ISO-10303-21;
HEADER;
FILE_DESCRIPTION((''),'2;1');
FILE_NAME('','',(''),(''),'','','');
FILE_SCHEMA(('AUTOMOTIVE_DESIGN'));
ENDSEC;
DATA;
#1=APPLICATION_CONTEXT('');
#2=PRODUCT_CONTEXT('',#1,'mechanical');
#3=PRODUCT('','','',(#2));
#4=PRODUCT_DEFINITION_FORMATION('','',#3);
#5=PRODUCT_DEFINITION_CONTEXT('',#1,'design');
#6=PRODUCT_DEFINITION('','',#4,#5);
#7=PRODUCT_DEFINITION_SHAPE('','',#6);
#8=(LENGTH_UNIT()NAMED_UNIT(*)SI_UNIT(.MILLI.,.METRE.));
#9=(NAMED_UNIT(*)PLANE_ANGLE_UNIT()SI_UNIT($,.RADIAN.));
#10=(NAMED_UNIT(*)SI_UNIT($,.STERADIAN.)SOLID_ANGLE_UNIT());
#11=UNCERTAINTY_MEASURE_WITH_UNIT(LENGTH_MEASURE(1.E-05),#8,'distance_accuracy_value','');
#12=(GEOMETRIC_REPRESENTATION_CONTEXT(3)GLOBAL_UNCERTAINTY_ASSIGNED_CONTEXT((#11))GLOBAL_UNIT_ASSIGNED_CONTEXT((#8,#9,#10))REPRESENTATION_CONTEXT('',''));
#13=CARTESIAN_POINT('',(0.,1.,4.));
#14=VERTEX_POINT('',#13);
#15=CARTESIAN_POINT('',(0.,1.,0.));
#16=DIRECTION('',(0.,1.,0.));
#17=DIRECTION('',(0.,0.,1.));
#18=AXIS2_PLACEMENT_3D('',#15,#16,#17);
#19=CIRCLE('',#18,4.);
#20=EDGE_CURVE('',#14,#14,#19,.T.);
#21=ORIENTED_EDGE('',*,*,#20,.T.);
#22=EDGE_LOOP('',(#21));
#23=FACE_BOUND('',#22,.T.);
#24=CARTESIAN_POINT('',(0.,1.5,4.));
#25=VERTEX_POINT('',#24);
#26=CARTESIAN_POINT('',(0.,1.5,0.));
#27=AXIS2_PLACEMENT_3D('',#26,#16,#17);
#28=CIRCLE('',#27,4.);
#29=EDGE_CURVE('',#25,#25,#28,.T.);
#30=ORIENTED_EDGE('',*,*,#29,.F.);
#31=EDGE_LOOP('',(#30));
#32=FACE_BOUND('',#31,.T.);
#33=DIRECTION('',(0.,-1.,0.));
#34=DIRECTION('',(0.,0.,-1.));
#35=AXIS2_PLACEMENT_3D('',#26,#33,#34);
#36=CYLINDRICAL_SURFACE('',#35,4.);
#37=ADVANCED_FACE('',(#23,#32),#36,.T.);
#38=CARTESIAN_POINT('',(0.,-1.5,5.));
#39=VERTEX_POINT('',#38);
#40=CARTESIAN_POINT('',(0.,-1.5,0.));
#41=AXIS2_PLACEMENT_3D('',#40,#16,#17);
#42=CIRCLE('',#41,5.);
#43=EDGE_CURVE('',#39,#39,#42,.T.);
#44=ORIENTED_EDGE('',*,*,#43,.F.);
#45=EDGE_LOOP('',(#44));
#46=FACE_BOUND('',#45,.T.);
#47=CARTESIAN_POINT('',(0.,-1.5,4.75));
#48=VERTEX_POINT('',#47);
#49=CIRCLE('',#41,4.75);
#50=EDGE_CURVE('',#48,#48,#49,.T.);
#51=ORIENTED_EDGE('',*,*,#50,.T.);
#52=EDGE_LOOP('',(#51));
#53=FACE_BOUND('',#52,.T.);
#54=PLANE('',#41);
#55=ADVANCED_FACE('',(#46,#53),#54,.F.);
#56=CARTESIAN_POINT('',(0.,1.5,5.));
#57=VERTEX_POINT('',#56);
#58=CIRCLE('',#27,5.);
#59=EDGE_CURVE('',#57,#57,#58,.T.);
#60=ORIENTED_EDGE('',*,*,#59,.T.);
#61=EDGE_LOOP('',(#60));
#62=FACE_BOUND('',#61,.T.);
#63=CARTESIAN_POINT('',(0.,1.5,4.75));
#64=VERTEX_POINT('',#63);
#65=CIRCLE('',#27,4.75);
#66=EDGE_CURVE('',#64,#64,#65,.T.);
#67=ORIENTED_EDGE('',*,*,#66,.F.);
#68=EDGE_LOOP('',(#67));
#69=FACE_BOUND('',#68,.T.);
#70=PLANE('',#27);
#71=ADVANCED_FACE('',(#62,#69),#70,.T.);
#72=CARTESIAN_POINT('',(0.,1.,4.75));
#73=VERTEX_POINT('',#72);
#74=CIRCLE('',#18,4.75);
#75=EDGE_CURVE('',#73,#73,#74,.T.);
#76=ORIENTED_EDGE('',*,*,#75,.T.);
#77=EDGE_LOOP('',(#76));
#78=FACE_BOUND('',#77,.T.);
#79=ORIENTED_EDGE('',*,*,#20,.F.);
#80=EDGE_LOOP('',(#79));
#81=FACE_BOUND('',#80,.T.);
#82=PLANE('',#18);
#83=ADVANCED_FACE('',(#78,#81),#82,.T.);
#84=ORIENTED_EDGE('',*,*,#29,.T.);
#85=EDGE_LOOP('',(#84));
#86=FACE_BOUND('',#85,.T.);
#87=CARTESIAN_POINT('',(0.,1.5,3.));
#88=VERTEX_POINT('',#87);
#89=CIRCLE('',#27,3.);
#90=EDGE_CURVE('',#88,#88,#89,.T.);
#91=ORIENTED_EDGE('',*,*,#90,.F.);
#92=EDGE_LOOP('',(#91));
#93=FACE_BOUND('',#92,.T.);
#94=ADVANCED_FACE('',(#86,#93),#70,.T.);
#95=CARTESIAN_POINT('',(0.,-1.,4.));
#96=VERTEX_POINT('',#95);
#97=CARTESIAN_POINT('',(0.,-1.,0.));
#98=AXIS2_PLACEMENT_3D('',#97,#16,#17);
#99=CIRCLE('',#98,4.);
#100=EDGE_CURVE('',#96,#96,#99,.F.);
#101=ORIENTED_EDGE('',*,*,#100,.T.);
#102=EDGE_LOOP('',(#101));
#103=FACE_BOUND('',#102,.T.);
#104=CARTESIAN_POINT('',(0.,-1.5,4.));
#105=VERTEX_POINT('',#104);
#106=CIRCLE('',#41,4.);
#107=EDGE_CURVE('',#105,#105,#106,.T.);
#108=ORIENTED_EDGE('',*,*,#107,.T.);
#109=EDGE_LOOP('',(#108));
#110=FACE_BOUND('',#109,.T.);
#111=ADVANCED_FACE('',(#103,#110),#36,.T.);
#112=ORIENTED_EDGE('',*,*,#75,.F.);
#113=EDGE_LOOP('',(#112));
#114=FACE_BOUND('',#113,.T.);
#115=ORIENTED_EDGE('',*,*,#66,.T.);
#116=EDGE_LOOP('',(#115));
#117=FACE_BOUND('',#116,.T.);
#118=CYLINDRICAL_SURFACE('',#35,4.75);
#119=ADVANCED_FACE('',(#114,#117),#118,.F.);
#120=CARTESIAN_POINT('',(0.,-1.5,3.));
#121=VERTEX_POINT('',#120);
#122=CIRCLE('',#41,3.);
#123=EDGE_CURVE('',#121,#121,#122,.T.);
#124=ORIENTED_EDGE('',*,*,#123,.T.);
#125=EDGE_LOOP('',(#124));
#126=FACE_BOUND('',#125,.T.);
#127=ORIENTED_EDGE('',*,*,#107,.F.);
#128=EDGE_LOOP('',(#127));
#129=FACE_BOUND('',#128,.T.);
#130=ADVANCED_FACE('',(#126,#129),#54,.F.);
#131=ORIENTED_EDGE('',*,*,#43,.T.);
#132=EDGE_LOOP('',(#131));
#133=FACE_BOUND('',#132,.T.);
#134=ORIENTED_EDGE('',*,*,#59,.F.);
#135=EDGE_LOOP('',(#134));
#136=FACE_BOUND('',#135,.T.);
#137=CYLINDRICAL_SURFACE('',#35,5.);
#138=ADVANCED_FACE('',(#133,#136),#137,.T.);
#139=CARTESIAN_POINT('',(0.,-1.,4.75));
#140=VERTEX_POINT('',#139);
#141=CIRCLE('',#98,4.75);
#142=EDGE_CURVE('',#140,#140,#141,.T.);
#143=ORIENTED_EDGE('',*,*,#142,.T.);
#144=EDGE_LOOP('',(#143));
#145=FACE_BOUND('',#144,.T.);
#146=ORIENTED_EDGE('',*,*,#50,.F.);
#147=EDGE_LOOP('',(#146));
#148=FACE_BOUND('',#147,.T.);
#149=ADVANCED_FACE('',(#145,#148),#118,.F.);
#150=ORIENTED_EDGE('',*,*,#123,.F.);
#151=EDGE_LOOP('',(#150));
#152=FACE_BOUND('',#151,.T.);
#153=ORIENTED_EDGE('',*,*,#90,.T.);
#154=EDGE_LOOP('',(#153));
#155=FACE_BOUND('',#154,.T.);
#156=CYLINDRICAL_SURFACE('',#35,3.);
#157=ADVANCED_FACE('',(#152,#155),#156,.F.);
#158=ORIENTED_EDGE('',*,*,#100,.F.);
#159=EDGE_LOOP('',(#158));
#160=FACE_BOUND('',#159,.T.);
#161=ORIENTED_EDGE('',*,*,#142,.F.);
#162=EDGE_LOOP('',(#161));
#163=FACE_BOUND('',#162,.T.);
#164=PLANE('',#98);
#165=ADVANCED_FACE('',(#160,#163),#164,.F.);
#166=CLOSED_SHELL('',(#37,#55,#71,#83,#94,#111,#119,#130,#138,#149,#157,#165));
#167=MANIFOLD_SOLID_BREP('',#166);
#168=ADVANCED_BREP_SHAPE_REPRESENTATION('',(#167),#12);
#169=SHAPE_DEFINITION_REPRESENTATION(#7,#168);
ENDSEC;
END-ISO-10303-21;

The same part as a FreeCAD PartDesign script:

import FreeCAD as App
import Part
import Sketcher
from FreeCAD import Vector
Q = App.Units.Quantity

doc = App.newDocument("Part")
body = doc.addObject("PartDesign::Body", "Body")

# Sketch on XZ plane
sketch1 = body.newObject("Sketcher::SketchObject", "Sketch")
sketch1.AttachmentSupport = (doc.getObject("XZ_Plane"), [""])
sketch1.MapMode = "FlatFace"
sketch1.addGeometry([
    Part.Circle(Vector(0, 0, 0), Vector(0, 0, 1), 5),
    Part.Circle(Vector(0, 0, 0), Vector(0, 0, 1), 4.8),
], False)
sketch1.addConstraint([
    Sketcher.Constraint("Coincident", 0, 3, -1, 1),
    Sketcher.Constraint("Coincident", 1, 3, -1, 1),
    Sketcher.Constraint("Diameter", 0, Q("10 mm")),
    Sketcher.Constraint("Diameter", 1, Q("9.5 mm")),
])
pad1 = body.newObject("PartDesign::Pad", "Pad")
pad1.Profile = sketch1
pad1.Length = 3
pad1.Midplane = True
body2 = doc.addObject("PartDesign::Body", "Body001")

# Sketch on XZ plane
sketch2 = body2.newObject("Sketcher::SketchObject", "Sketch001")
sketch2.AttachmentSupport = (doc.getObject("XZ_Plane001"), [""])
sketch2.MapMode = "FlatFace"
sketch2.addGeometry([
    Part.Circle(Vector(0, 0, 0), Vector(0, 0, 1), 4),
    Part.Circle(Vector(0, 0, 0), Vector(0, 0, 1), 3),
], False)
sketch2.addConstraint([
    Sketcher.Constraint("Coincident", 0, 3, -1, 1),
    Sketcher.Constraint("Coincident", 1, 3, -1, 1),
    Sketcher.Constraint("Diameter", 0, Q("8 mm")),
    Sketcher.Constraint("Diameter", 1, Q("6 mm")),
])
pad2 = body2.newObject("PartDesign::Pad", "Pad001")
pad2.Profile = sketch2
pad2.Length = 3
pad2.Midplane = True
body.AllowCompound = True
doc.recompute()

boolean = body.newObject("PartDesign::Boolean", "Boolean")
boolean.Type = "Fuse"
boolean.addObjects([body2])

# Sketch on XZ plane
sketch3 = body.newObject("Sketcher::SketchObject", "Sketch002")
sketch3.AttachmentSupport = (doc.getObject("XZ_Plane"), [""])
sketch3.MapMode = "FlatFace"
sketch3.addGeometry([
    Part.Circle(Vector(0, 0, 0), Vector(0, 0, 1), 4.8),
    Part.Circle(Vector(0, 0, 0), Vector(0, 0, 1), 4),
], False)
sketch3.addConstraint([
    Sketcher.Constraint("Coincident", 0, 3, -1, 1),
    Sketcher.Constraint("Coincident", 1, 3, -1, 1),
    Sketcher.Constraint("Diameter", 1, Q("8 mm")),
    Sketcher.Constraint("Diameter", 0, Q("9.5 mm")),
])
pad3 = body.newObject("PartDesign::Pad", "Pad002")
pad3.Profile = sketch3
pad3.Length = 2
pad3.Midplane = True

doc.recompute()
